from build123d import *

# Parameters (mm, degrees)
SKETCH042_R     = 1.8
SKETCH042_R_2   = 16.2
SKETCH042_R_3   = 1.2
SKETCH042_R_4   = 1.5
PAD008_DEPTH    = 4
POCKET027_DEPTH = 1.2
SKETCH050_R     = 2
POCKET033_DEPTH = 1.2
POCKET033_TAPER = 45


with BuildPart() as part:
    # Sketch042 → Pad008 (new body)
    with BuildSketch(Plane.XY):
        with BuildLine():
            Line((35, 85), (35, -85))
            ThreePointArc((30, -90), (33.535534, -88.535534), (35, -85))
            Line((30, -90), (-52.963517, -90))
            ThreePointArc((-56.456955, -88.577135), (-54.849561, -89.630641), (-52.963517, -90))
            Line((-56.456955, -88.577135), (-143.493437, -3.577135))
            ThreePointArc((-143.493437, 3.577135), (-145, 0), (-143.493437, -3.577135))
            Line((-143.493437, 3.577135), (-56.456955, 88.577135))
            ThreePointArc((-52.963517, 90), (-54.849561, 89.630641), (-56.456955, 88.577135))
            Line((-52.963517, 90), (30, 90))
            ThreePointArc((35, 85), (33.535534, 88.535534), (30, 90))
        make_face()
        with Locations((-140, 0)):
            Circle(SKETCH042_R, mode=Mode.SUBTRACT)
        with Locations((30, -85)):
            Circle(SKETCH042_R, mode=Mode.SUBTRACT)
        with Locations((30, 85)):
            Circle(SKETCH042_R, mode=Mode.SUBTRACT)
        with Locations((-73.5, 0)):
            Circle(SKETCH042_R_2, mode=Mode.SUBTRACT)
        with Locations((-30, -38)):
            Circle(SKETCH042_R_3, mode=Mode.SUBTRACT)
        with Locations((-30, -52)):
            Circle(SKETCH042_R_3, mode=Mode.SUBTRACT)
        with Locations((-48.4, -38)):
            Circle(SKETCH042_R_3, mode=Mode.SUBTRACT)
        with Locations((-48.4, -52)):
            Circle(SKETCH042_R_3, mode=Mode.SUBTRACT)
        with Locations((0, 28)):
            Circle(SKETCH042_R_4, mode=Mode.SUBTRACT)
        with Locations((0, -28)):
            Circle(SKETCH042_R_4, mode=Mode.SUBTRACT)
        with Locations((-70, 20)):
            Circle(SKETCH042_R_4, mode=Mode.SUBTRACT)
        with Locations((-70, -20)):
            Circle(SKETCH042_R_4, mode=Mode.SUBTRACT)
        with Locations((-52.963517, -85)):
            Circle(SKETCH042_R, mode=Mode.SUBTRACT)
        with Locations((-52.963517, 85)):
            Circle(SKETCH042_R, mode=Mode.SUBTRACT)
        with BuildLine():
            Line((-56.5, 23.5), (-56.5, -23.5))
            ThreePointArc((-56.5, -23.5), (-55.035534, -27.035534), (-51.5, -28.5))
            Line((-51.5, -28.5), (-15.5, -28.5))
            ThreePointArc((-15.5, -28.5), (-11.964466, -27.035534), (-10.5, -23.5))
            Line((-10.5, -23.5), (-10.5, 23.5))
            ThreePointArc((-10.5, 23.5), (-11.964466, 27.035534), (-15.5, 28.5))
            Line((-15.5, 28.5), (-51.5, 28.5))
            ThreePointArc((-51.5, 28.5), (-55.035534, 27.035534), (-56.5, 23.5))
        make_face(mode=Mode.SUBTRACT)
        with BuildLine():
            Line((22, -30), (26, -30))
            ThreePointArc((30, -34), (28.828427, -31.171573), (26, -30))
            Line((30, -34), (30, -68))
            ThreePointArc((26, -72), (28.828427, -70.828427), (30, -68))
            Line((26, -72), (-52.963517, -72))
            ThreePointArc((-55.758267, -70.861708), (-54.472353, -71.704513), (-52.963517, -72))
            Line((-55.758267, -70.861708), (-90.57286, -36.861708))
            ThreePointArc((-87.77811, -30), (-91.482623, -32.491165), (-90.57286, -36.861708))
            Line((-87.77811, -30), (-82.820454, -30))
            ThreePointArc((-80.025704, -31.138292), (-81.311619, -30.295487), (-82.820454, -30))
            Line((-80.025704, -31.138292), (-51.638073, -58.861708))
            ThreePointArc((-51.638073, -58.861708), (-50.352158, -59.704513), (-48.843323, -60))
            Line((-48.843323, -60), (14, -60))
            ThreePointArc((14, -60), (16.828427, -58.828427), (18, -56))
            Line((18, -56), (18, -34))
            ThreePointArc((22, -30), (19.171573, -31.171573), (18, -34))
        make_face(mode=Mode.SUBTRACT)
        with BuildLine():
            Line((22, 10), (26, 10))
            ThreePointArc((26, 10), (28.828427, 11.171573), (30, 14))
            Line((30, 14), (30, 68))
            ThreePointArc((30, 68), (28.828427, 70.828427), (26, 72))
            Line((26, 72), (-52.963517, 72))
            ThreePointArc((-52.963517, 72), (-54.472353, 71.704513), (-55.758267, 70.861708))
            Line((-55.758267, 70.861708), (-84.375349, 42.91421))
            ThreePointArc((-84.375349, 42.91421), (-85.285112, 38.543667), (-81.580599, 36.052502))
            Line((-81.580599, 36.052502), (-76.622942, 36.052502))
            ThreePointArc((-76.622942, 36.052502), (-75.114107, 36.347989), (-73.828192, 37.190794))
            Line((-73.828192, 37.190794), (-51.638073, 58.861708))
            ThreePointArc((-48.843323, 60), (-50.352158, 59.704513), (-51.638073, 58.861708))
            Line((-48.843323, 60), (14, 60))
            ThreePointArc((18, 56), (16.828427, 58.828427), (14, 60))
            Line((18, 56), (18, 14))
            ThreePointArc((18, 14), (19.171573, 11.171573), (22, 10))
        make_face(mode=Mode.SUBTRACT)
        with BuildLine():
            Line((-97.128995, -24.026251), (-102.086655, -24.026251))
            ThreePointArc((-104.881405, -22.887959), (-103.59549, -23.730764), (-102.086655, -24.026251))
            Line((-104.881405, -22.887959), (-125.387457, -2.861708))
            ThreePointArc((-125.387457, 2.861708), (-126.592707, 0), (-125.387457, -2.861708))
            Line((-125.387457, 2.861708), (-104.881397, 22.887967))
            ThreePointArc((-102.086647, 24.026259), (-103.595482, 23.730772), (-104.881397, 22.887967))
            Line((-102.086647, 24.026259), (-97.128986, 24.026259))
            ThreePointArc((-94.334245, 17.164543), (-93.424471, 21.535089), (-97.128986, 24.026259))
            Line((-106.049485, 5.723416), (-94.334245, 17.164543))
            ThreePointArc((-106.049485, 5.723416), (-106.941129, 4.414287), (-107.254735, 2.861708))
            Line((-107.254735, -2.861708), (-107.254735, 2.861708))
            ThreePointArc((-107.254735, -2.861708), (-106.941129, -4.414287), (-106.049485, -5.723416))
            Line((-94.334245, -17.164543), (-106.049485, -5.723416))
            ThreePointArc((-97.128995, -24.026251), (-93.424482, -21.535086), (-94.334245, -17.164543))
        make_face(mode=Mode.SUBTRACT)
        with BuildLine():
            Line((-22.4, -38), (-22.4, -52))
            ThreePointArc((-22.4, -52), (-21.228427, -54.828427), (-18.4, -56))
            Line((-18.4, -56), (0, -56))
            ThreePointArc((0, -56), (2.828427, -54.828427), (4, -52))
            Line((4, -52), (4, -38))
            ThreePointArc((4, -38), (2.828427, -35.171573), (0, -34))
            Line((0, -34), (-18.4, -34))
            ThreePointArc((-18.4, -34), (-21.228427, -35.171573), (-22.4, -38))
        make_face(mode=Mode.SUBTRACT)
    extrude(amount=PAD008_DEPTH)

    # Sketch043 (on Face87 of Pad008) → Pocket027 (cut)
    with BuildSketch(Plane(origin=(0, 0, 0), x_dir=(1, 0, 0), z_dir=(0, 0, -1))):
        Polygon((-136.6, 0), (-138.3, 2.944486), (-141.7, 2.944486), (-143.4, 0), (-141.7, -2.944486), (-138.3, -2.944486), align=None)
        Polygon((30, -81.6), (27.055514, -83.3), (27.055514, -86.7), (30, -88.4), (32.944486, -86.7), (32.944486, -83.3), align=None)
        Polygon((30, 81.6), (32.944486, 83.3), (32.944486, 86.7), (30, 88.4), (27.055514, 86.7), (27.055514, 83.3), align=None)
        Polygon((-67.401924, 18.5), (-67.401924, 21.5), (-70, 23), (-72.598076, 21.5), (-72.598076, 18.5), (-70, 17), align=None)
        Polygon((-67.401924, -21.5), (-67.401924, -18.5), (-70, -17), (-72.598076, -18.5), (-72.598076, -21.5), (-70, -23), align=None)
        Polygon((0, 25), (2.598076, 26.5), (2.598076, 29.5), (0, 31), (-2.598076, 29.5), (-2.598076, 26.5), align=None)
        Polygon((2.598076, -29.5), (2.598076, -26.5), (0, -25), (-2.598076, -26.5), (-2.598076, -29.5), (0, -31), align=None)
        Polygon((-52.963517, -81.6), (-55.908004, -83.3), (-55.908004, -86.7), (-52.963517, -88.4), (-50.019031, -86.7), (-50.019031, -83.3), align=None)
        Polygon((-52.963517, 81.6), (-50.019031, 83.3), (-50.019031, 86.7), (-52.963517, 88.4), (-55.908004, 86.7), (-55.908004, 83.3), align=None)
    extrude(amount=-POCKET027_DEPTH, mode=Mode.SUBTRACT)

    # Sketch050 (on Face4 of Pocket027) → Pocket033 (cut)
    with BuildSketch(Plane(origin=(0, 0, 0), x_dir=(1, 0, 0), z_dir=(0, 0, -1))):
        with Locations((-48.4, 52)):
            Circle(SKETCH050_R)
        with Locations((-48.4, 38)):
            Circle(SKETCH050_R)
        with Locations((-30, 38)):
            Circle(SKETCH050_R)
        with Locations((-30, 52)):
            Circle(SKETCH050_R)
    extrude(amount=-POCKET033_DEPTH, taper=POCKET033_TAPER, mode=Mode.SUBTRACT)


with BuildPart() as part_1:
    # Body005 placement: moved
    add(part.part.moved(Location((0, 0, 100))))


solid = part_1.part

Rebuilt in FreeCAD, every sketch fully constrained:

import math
import FreeCAD as App
import Part
import Sketcher
from FreeCAD import Vector
Q = App.Units.Quantity

doc = App.newDocument("Part")
body = doc.addObject("PartDesign::Body", "Body")

# Sketch on XY plane
sketch1 = body.newObject("Sketcher::SketchObject", "Sketch")
sketch1.AttachmentSupport = (doc.getObject("XY_Plane"), [""])
sketch1.MapMode = "FlatFace"
sketch1.addGeometry([
    Part.LineSegment(Vector(35, -85, 0), Vector(35, 85, 0)),  # 0
    Part.ArcOfCircle(Part.Circle(Vector(30, 85, 0), Vector(0, 0, 1), 5), math.radians(0), math.radians(90)),  # 1
    Part.LineSegment(Vector(30, 90, 0), Vector(-53, 90, 0)),  # 2
    Part.ArcOfCircle(Part.Circle(Vector(-53, 85, 0), Vector(0, 0, 1), 5), math.radians(90), math.radians(134)),  # 3
    Part.LineSegment(Vector(-56.5, 88.6, 0), Vector(-143.5, 3.6, 0)),  # 4
    Part.ArcOfCircle(Part.Circle(Vector(-140, 0, 0), Vector(0, 0, 1), 5), math.radians(134), math.radians(226)),  # 5
    Part.LineSegment(Vector(-143.5, -3.6, 0), Vector(-56.5, -88.6, 0)),  # 6
    Part.ArcOfCircle(Part.Circle(Vector(-53, -85, 0), Vector(0, 0, 1), 5), math.radians(-134), math.radians(-90)),  # 7
    Part.LineSegment(Vector(-53, -90, 0), Vector(30, -90, 0)),  # 8
    Part.ArcOfCircle(Part.Circle(Vector(30, -85, 0), Vector(0, 0, 1), 5), math.radians(-90), math.radians(0)),  # 9
    Part.Circle(Vector(30, -85, 0), Vector(0, 0, 1), 1.8),  # 10
    Part.ArcOfCircle(Part.Circle(Vector(-18.4, -38, 0), Vector(0, 0, 1), 4), math.radians(90), math.radians(180)),  # 11
    Part.LineSegment(Vector(-18.4, -34, 0), Vector(0, -34, 0)),  # 12
    Part.ArcOfCircle(Part.Circle(Vector(0, -38, 0), Vector(0, 0, 1), 4), math.radians(0), math.radians(90)),  # 13
    Part.LineSegment(Vector(4, -38, 0), Vector(4, -52, 0)),  # 14
    Part.ArcOfCircle(Part.Circle(Vector(0, -52, 0), Vector(0, 0, 1), 4), math.radians(-90), math.radians(0)),  # 15
    Part.LineSegment(Vector(0, -56, 0), Vector(-18.4, -56, 0)),  # 16
    Part.ArcOfCircle(Part.Circle(Vector(-18.4, -52, 0), Vector(0, 0, 1), 4), math.radians(-180), math.radians(-90)),  # 17
    Part.LineSegment(Vector(-22.4, -52, 0), Vector(-22.4, -38, 0)),  # 18
    Part.Circle(Vector(-53, -85, 0), Vector(0, 0, 1), 1.8),  # 19
    Part.Circle(Vector(-30, -52, 0), Vector(0, 0, 1), 1.2),  # 20
    Part.LineSegment(Vector(22, -30, 0), Vector(26, -30, 0)),  # 21
    Part.ArcOfCircle(Part.Circle(Vector(26, -34, 0), Vector(0, 0, 1), 4), math.radians(0), math.radians(90)),  # 22
    Part.LineSegment(Vector(30, -34, 0), Vector(30, -68, 0)),  # 23
    Part.ArcOfCircle(Part.Circle(Vector(26, -68, 0), Vector(0, 0, 1), 4), math.radians(-90), math.radians(0)),  # 24
    Part.LineSegment(Vector(26, -72, 0), Vector(-53, -72, 0)),  # 25
    Part.ArcOfCircle(Part.Circle(Vector(-53, -68, 0), Vector(0, 0, 1), 4), math.radians(-134), math.radians(-90)),  # 26
    Part.LineSegment(Vector(-55.8, -70.9, 0), Vector(-90.6, -36.9, 0)),  # 27
    Part.ArcOfCircle(Part.Circle(Vector(-87.8, -34, 0), Vector(0, 0, 1), 4), math.radians(90), math.radians(226)),  # 28
    Part.LineSegment(Vector(-87.8, -30, 0), Vector(-82.8, -30, 0)),  # 29
    Part.ArcOfCircle(Part.Circle(Vector(-82.8, -34, 0), Vector(0, 0, 1), 4), math.radians(46), math.radians(90)),  # 30
    Part.LineSegment(Vector(-80, -31.1, 0), Vector(-51.6, -58.9, 0)),  # 31
    Part.ArcOfCircle(Part.Circle(Vector(-48.8, -56, 0), Vector(0, 0, 1), 4), math.radians(-134), math.radians(-90)),  # 32
    Part.LineSegment(Vector(-48.8, -60, 0), Vector(14, -60, 0)),  # 33
    Part.ArcOfCircle(Part.Circle(Vector(14, -56, 0), Vector(0, 0, 1), 4), math.radians(-90), math.radians(0)),  # 34
    Part.LineSegment(Vector(18, -56, 0), Vector(18, -34, 0)),  # 35
    Part.ArcOfCircle(Part.Circle(Vector(22, -34, 0), Vector(0, 0, 1), 4), math.radians(90), math.radians(180)),  # 36
    Part.Circle(Vector(-48.4, -52, 0), Vector(0, 0, 1), 1.2),  # 37
    Part.Circle(Vector(0, -28, 0), Vector(0, 0, 1), 1.5),  # 38
    Part.Circle(Vector(-30, -38, 0), Vector(0, 0, 1), 1.2),  # 39
    Part.Circle(Vector(-48.4, -38, 0), Vector(0, 0, 1), 1.2),  # 40
    Part.Circle(Vector(-70, -20, 0), Vector(0, 0, 1), 1.5),  # 41
    Part.Circle(Vector(0, 28, 0), Vector(0, 0, 1), 1.5),  # 42
    Part.ArcOfCircle(Part.Circle(Vector(-51.5, 23.5, 0), Vector(0, 0, 1), 5), math.radians(90), math.radians(180)),  # 43
    Part.LineSegment(Vector(-51.5, 28.5, 0), Vector(-15.5, 28.5, 0)),  # 44
    Part.ArcOfCircle(Part.Circle(Vector(-15.5, 23.5, 0), Vector(0, 0, 1), 5), math.radians(0), math.radians(90)),  # 45
    Part.LineSegment(Vector(-10.5, 23.5, 0), Vector(-10.5, -23.5, 0)),  # 46
    Part.ArcOfCircle(Part.Circle(Vector(-15.5, -23.5, 0), Vector(0, 0, 1), 5), math.radians(-90), math.radians(0)),  # 47
    Part.LineSegment(Vector(-15.5, -28.5, 0), Vector(-51.5, -28.5, 0)),  # 48
    Part.ArcOfCircle(Part.Circle(Vector(-51.5, -23.5, 0), Vector(0, 0, 1), 5), math.radians(180), math.radians(270)),  # 49
    Part.LineSegment(Vector(-56.5, -23.5, 0), Vector(-56.5, 23.5, 0)),  # 50
    Part.ArcOfCircle(Part.Circle(Vector(22, 14, 0), Vector(0, 0, 1), 4), math.radians(-180), math.radians(-90)),  # 51
    Part.LineSegment(Vector(18, 14, 0), Vector(18, 56, 0)),  # 52
    Part.ArcOfCircle(Part.Circle(Vector(14, 56, 0), Vector(0, 0, 1), 4), math.radians(0), math.radians(90)),  # 53
    Part.LineSegment(Vector(14, 60, 0), Vector(-48.8, 60, 0)),  # 54
    Part.ArcOfCircle(Part.Circle(Vector(-48.8, 56, 0), Vector(0, 0, 1), 4), math.radians(90), math.radians(134)),  # 55
    Part.LineSegment(Vector(-51.6, 58.9, 0), Vector(-73.8, 37.2, 0)),  # 56
    Part.ArcOfCircle(Part.Circle(Vector(-76.6, 40.1, 0), Vector(0, 0, 1), 4), math.radians(-90), math.radians(-46)),  # 57
    Part.LineSegment(Vector(-76.6, 36.1, 0), Vector(-81.6, 36.1, 0)),  # 58
    Part.ArcOfCircle(Part.Circle(Vector(-81.6, 40.1, 0), Vector(0, 0, 1), 4), math.radians(134), math.radians(270)),  # 59
    Part.LineSegment(Vector(-84.4, 42.9, 0), Vector(-55.8, 70.9, 0)),  # 60
    Part.ArcOfCircle(Part.Circle(Vector(-53, 68, 0), Vector(0, 0, 1), 4), math.radians(90), math.radians(134)),  # 61
    Part.LineSegment(Vector(-53, 72, 0), Vector(26, 72, 0)),  # 62
    Part.ArcOfCircle(Part.Circle(Vector(26, 68, 0), Vector(0, 0, 1), 4), math.radians(0), math.radians(90)),  # 63
    Part.LineSegment(Vector(30, 68, 0), Vector(30, 14, 0)),  # 64
    Part.ArcOfCircle(Part.Circle(Vector(26, 14, 0), Vector(0, 0, 1), 4), math.radians(-90), math.radians(0)),  # 65
    Part.LineSegment(Vector(26, 10, 0), Vector(22, 10, 0)),  # 66
    Part.Circle(Vector(30, 85, 0), Vector(0, 0, 1), 1.8),  # 67
    Part.Circle(Vector(-53, 85, 0), Vector(0, 0, 1), 1.8),  # 68
    Part.Circle(Vector(-73.5, 0, 0), Vector(0, 0, 1), 16.2),  # 69
    Part.Circle(Vector(-70, 20, 0), Vector(0, 0, 1), 1.5),  # 70
    Part.LineSegment(Vector(-97.1, -24, 0), Vector(-102.1, -24, 0)),  # 71
    Part.ArcOfCircle(Part.Circle(Vector(-102.1, -20, 0), Vector(0, 0, 1), 4), math.radians(-134), math.radians(-90)),  # 72
    Part.LineSegment(Vector(-104.9, -22.9, 0), Vector(-125.4, -2.9, 0)),  # 73
    Part.ArcOfCircle(Part.Circle(Vector(-122.6, 0, 0), Vector(0, 0, 1), 4), math.radians(134), math.radians(226)),  # 74
    Part.LineSegment(Vector(-125.4, 2.9, 0), Vector(-104.9, 22.9, 0)),  # 75
    Part.ArcOfCircle(Part.Circle(Vector(-102.1, 20, 0), Vector(0, 0, 1), 4), math.radians(90), math.radians(134)),  # 76
    Part.LineSegment(Vector(-102.1, 24, 0), Vector(-97.1, 24, 0)),  # 77
    Part.ArcOfCircle(Part.Circle(Vector(-97.1, 20, 0), Vector(0, 0, 1), 4), math.radians(-46), math.radians(90)),  # 78
    Part.LineSegment(Vector(-94.3, 17.2, 0), Vector(-106, 5.7, 0)),  # 79
    Part.ArcOfCircle(Part.Circle(Vector(-103.3, 2.9, 0), Vector(0, 0, 1), 4), math.radians(134), math.radians(180)),  # 80
    Part.LineSegment(Vector(-107.3, 2.9, 0), Vector(-107.3, -2.9, 0)),  # 81
    Part.ArcOfCircle(Part.Circle(Vector(-103.3, -2.9, 0), Vector(0, 0, 1), 4), math.radians(180), math.radians(226)),  # 82
    Part.LineSegment(Vector(-106, -5.7, 0), Vector(-94.3, -17.2, 0)),  # 83
    Part.ArcOfCircle(Part.Circle(Vector(-97.1, -20, 0), Vector(0, 0, 1), 4), math.radians(-90), math.radians(46)),  # 84
    Part.Circle(Vector(-140, 0, 0), Vector(0, 0, 1), 1.8),  # 85
], False)
sketch1.addConstraint([
    Sketcher.Constraint("Tangent", 0, 2, 1, 1),
    Sketcher.Constraint("Tangent", 1, 2, 2, 1),
    Sketcher.Constraint("Tangent", 2, 2, 3, 1),
    Sketcher.Constraint("Tangent", 3, 2, 4, 1),
    Sketcher.Constraint("Tangent", 4, 2, 5, 1),
    Sketcher.Constraint("Tangent", 5, 2, 6, 1),
    Sketcher.Constraint("Tangent", 6, 2, 7, 1),
    Sketcher.Constraint("Tangent", 7, 2, 8, 1),
    Sketcher.Constraint("Tangent", 8, 2, 9, 1),
    Sketcher.Constraint("Tangent", 9, 2, 0, 1),
    Sketcher.Constraint("Tangent", 11, 1, 12, 1),
    Sketcher.Constraint("Tangent", 12, 2, 13, 2),
    Sketcher.Constraint("Tangent", 13, 1, 14, 1),
    Sketcher.Constraint("Tangent", 14, 2, 15, 2),
    Sketcher.Constraint("Tangent", 15, 1, 16, 1),
    Sketcher.Constraint("Tangent", 16, 2, 17, 2),
    Sketcher.Constraint("Tangent", 17, 1, 18, 1),
    Sketcher.Constraint("Tangent", 18, 2, 11, 2),
    Sketcher.Constraint("Tangent", 21, 2, 22, 2),
    Sketcher.Constraint("Tangent", 22, 1, 23, 1),
    Sketcher.Constraint("Tangent", 23, 2, 24, 2),
    Sketcher.Constraint("Tangent", 24, 1, 25, 1),
    Sketcher.Constraint("Tangent", 25, 2, 26, 2),
    Sketcher.Constraint("Tangent", 26, 1, 27, 1),
    Sketcher.Constraint("Tangent", 27, 2, 28, 2),
    Sketcher.Constraint("Tangent", 28, 1, 29, 1),
    Sketcher.Constraint("Tangent", 29, 2, 30, 2),
    Sketcher.Constraint("Tangent", 30, 1, 31, 1),
    Sketcher.Constraint("Tangent", 31, 2, 32, 1),
    Sketcher.Constraint("Tangent", 32, 2, 33, 1),
    Sketcher.Constraint("Tangent", 33, 2, 34, 1),
    Sketcher.Constraint("Tangent", 34, 2, 35, 1),
    Sketcher.Constraint("Tangent", 35, 2, 36, 2),
    Sketcher.Constraint("Tangent", 36, 1, 21, 1),
    Sketcher.Constraint("Tangent", 43, 1, 44, 1),
    Sketcher.Constraint("Tangent", 44, 2, 45, 2),
    Sketcher.Constraint("Tangent", 45, 1, 46, 1),
    Sketcher.Constraint("Tangent", 46, 2, 47, 2),
    Sketcher.Constraint("Tangent", 47, 1, 48, 1),
    Sketcher.Constraint("Tangent", 48, 2, 49, 2),
    Sketcher.Constraint("Tangent", 49, 1, 50, 1),
    Sketcher.Constraint("Tangent", 50, 2, 43, 2),
    Sketcher.Constraint("Tangent", 51, 1, 52, 1),
    Sketcher.Constraint("Tangent", 52, 2, 53, 1),
    Sketcher.Constraint("Tangent", 53, 2, 54, 1),
    Sketcher.Constraint("Tangent", 54, 2, 55, 1),
    Sketcher.Constraint("Tangent", 55, 2, 56, 1),
    Sketcher.Constraint("Tangent", 56, 2, 57, 2),
    Sketcher.Constraint("Tangent", 57, 1, 58, 1),
    Sketcher.Constraint("Tangent", 58, 2, 59, 2),
    Sketcher.Constraint("Tangent", 59, 1, 60, 1),
    Sketcher.Constraint("Tangent", 60, 2, 61, 2),
    Sketcher.Constraint("Tangent", 61, 1, 62, 1),
    Sketcher.Constraint("Tangent", 62, 2, 63, 2),
    Sketcher.Constraint("Tangent", 63, 1, 64, 1),
    Sketcher.Constraint("Tangent", 64, 2, 65, 2),
    Sketcher.Constraint("Tangent", 65, 1, 66, 1),
    Sketcher.Constraint("Tangent", 66, 2, 51, 2),
    Sketcher.Constraint("Tangent", 71, 2, 72, 2),
    Sketcher.Constraint("Tangent", 72, 1, 73, 1),
    Sketcher.Constraint("Tangent", 73, 2, 74, 2),
    Sketcher.Constraint("Tangent", 74, 1, 75, 1),
    Sketcher.Constraint("Tangent", 75, 2, 76, 2),
    Sketcher.Constraint("Tangent", 76, 1, 77, 1),
    Sketcher.Constraint("Tangent", 77, 2, 78, 2),
    Sketcher.Constraint("Coincident", 78, 1, 79, 1),
    Sketcher.Constraint("Tangent", 79, 2, 80, 1),
    Sketcher.Constraint("Tangent", 80, 2, 81, 1),
    Sketcher.Constraint("Tangent", 81, 2, 82, 1),
    Sketcher.Constraint("Tangent", 82, 2, 83, 1),
    Sketcher.Constraint("Tangent", 83, 2, 84, 2),
    Sketcher.Constraint("Tangent", 84, 1, 71, 1),
    Sketcher.Constraint("Vertical", 0),
    Sketcher.Constraint("Horizontal", 2),
    Sketcher.Constraint("Horizontal", 8),
    Sketcher.Constraint("Horizontal", 12),
    Sketcher.Constraint("Vertical", 14),
    Sketcher.Constraint("Horizontal", 16),
    Sketcher.Constraint("Vertical", 18),
    Sketcher.Constraint("Horizontal", 21),
    Sketcher.Constraint("Vertical", 23),
    Sketcher.Constraint("Horizontal", 25),
    Sketcher.Constraint("Horizontal", 29),
    Sketcher.Constraint("Horizontal", 33),
    Sketcher.Constraint("Vertical", 35),
    Sketcher.Constraint("Horizontal", 44),
    Sketcher.Constraint("Vertical", 46),
    Sketcher.Constraint("Horizontal", 48),
    Sketcher.Constraint("Vertical", 50),
    Sketcher.Constraint("Vertical", 52),
    Sketcher.Constraint("Horizontal", 54),
    Sketcher.Constraint("Horizontal", 58),
    Sketcher.Constraint("Horizontal", 62),
    Sketcher.Constraint("Vertical", 64),
    Sketcher.Constraint("Horizontal", 66),
    Sketcher.Constraint("Horizontal", 71),
    Sketcher.Constraint("Horizontal", 77),
    Sketcher.Constraint("Vertical", 81),
    Sketcher.Constraint("Coincident", 10, 3, 9, 3),
    Sketcher.Constraint("Coincident", 19, 3, 7, 3),
    Sketcher.Constraint("Coincident", 67, 3, 1, 3),
    Sketcher.Constraint("Coincident", 68, 3, 3, 3),
    Sketcher.Constraint("Coincident", 85, 3, 5, 3),
    Sketcher.Constraint("Equal", 1, 5),
    Sketcher.Constraint("Equal", 3, 7),
    Sketcher.Constraint("Equal", 5, 9),
    Sketcher.Constraint("Equal", 11, 13),
    Sketcher.Constraint("Equal", 13, 15),
    Sketcher.Constraint("Equal", 15, 17),
    Sketcher.Constraint("Equal", 10, 19),
    Sketcher.Constraint("Equal", 17, 22),
    Sketcher.Constraint("Equal", 22, 24),
    Sketcher.Constraint("Equal", 24, 28),
    Sketcher.Constraint("Equal", 28, 30),
    Sketcher.Constraint("Equal", 30, 32),
    Sketcher.Constraint("Equal", 32, 34),
    Sketcher.Constraint("Equal", 34, 36),
    Sketcher.Constraint("Equal", 20, 37),
    Sketcher.Constraint("Equal", 37, 39),
    Sketcher.Constraint("Equal", 39, 40),
    Sketcher.Constraint("Equal", 38, 41),
    Sketcher.Constraint("Equal", 41, 42),
    Sketcher.Constraint("Equal", 9, 43),
    Sketcher.Constraint("Equal", 43, 45),
    Sketcher.Constraint("Equal", 45, 47),
    Sketcher.Constraint("Equal", 47, 49),
    Sketcher.Constraint("Equal", 36, 51),
    Sketcher.Constraint("Equal", 51, 53),
    Sketcher.Constraint("Equal", 53, 55),
    Sketcher.Constraint("Equal", 55, 57),
    Sketcher.Constraint("Equal", 57, 59),
    Sketcher.Constraint("Equal", 26, 61),
    Sketcher.Constraint("Equal", 59, 63),
    Sketcher.Constraint("Equal", 63, 65),
    Sketcher.Constraint("Equal", 19, 67),
    Sketcher.Constraint("Equal", 67, 68),
    Sketcher.Constraint("Equal", 42, 70),
    Sketcher.Constraint("Equal", 65, 72),
    Sketcher.Constraint("Equal", 72, 74),
    Sketcher.Constraint("Equal", 74, 76),
    Sketcher.Constraint("Equal", 76, 78),
    Sketcher.Constraint("Equal", 61, 80),
    Sketcher.Constraint("Equal", 80, 82),
    Sketcher.Constraint("Equal", 78, 84),
    Sketcher.Constraint("Equal", 68, 85),
    Sketcher.Constraint("Symmetric", 38, 3, 42, 3, -1, 1),
    Sketcher.Constraint("Symmetric", 3, 3, 7, 3, -1),
    Sketcher.Constraint("Symmetric", 34, 3, 53, 3, -1),
    Sketcher.Constraint("Symmetric", 26, 3, 61, 3, -1),
    Sketcher.Constraint("Symmetric", 41, 3, 70, 3, -1),
    Sketcher.Constraint("Symmetric", 31, 2, 55, 2, -1),
    Sketcher.Constraint("Symmetric", 73, 2, 74, 1, -1),
    Sketcher.Constraint("Symmetric", 79, 2, 82, 2, -1),
    Sketcher.Constraint("PointOnObject", 5, 3, -1),
    Sketcher.Constraint("PointOnObject", 13, 3, -2),
    Sketcher.Constraint("PointOnObject", 38, 3, -2),
    Sketcher.Constraint("PointOnObject", 69, 3, -1),
    Sketcher.Constraint("Parallel", 6, 27),
    Sketcher.Constraint("Parallel", 27, 31),
    Sketcher.Constraint("Parallel", 56, 60),
    Sketcher.Constraint("Parallel", 31, 73),
    Sketcher.Constraint("Parallel", 75, 79),
    Sketcher.Constraint("Horizontal", 10, 3, 19, 3),
    Sketcher.Constraint("Horizontal", 17, 3, 20, 3),
    Sketcher.Constraint("Horizontal", 22, 3, 28, 3),
    Sketcher.Constraint("Horizontal", 20, 3, 37, 3),
    Sketcher.Constraint("Horizontal", 13, 3, 39, 3),
    Sketcher.Constraint("Horizontal", 39, 3, 40, 3),
    Sketcher.Constraint("Horizontal", 36, 3, 11, 1),
    Sketcher.Constraint("Horizontal", 34, 3, 15, 1),
    Sketcher.Constraint("Horizontal", 82, 3, 73, 2),
    Sketcher.Constraint("Vertical", 19, 3, 26, 3),
    Sketcher.Constraint("Vertical", 20, 3, 39, 3),
    Sketcher.Constraint("Vertical", 37, 3, 40, 3),
    Sketcher.Constraint("Vertical", 24, 3, 63, 3),
    Sketcher.Constraint("Vertical", 8, 2, 22, 1),
    Sketcher.Constraint("Vertical", 78, 1, 83, 2),
    Sketcher.Constraint("Diameter", 38, 3.0),
    Sketcher.Constraint("Radius", 1, 5.0),
    Sketcher.Constraint("Radius", 11, 4.0),
    Sketcher.Constraint("Diameter", 10, 3.6),
    Sketcher.Constraint("Diameter", 20, 2.4),
    Sketcher.Constraint("Diameter", 69, 32.4),
    Sketcher.Constraint("DistanceX", 21, 1, 21, 2, 4.0),
    Sketcher.Constraint("DistanceX", 44, 1, 44, 2, 36.0),
    Sketcher.Constraint("DistanceY", 0, 1, 0, 2, 170.0),
    Sketcher.Constraint("DistanceY", 14, 2, 14, 1, 14.0),
    Sketcher.Constraint("DistanceY", 23, 2, 23, 1, 34.0),
    Sketcher.Constraint("DistanceY", 46, 2, 46, 1, 47.0),
    Sketcher.Constraint("DistanceY", 52, 1, 52, 2, 42.0),
    Sketcher.Constraint("Distance", 60, 40.0),
    Sketcher.Constraint("DistanceX", 12, 1, 12, 2, 18.4),
    Sketcher.Constraint("DistanceX", -1, 1, 1, 3, 30.0),
    Sketcher.Constraint("DistanceX", 5, 3, -1, 1, 140.000001),
    Sketcher.Constraint("DistanceY", 11, 3, -1, 1, 38.0),
    Sketcher.Constraint("DistanceX", 20, 3, -1, 1, 30.0),
    Sketcher.Constraint("DistanceY", 38, 3, -1, 1, 28.0),
    Sketcher.Constraint("DistanceX", 41, 3, -1, 1, 70.0),
    Sketcher.Constraint("DistanceY", 41, 3, -1, 1, 20.0),
    Sketcher.Constraint("DistanceX", 37, 3, -1, 1, 48.4),
    Sketcher.Constraint("DistanceX", 43, 3, -1, 1, 51.5),
    Sketcher.Constraint("DistanceY", -1, 1, 43, 3, 23.5),
    Sketcher.Constraint("DistanceX", 69, 3, -1, 1, 73.5),
    Sketcher.Constraint("Radius", 26, 3.999996),
    Sketcher.Constraint("DistanceX", 71, 2, 71, 1, 4.95766),
    Sketcher.Constraint("DistanceX", 59, 3, -1, 1, 81.580599),
    Sketcher.Constraint("Distance", 79, 16.375171),
    Sketcher.Constraint("DistanceX", 29, 1, 29, 2, 4.957656),
    Sketcher.Constraint("DistanceY", -1, 1, 76, 3, 20.026258),
    Sketcher.Constraint("DistanceX", 80, 3, -1, 1, 103.254738),
])
pad1 = body.newObject("PartDesign::Pad", "Pad")
pad1.Profile = sketch1
pad1.Length = 4

# Sketch on XY plane
sketch2 = body.newObject("Sketcher::SketchObject", "Sketch001")
sketch2.AttachmentSupport = (doc.getObject("XY_Plane"), [""])
sketch2.MapMode = "FlatFace"
sketch2.addGeometry([
    Part.LineSegment(Vector(-136.6, 0, 0), Vector(-138.3, -2.9, 0)),  # 0
    Part.LineSegment(Vector(-138.3, -2.9, 0), Vector(-141.7, -2.9, 0)),  # 1
    Part.LineSegment(Vector(-141.7, -2.9, 0), Vector(-143.4, 0, 0)),  # 2
    Part.LineSegment(Vector(-143.4, 0, 0), Vector(-141.7, 2.9, 0)),  # 3
    Part.LineSegment(Vector(-141.7, 2.9, 0), Vector(-138.3, 2.9, 0)),  # 4
    Part.LineSegment(Vector(-138.3, 2.9, 0), Vector(-136.6, 0, 0)),  # 5
    Part.LineSegment(Vector(30, 81.6, 0), Vector(27.1, 83.3, 0)),  # 6
    Part.LineSegment(Vector(27.1, 83.3, 0), Vector(27.1, 86.7, 0)),  # 7
    Part.LineSegment(Vector(27.1, 86.7, 0), Vector(30, 88.4, 0)),  # 8
    Part.LineSegment(Vector(30, 88.4, 0), Vector(32.9, 86.7, 0)),  # 9
    Part.LineSegment(Vector(32.9, 86.7, 0), Vector(32.9, 83.3, 0)),  # 10
    Part.LineSegment(Vector(32.9, 83.3, 0), Vector(30, 81.6, 0)),  # 11
    Part.LineSegment(Vector(30, -81.6, 0), Vector(32.9, -83.3, 0)),  # 12
    Part.LineSegment(Vector(32.9, -83.3, 0), Vector(32.9, -86.7, 0)),  # 13
    Part.LineSegment(Vector(32.9, -86.7, 0), Vector(30, -88.4, 0)),  # 14
    Part.LineSegment(Vector(30, -88.4, 0), Vector(27.1, -86.7, 0)),  # 15
    Part.LineSegment(Vector(27.1, -86.7, 0), Vector(27.1, -83.3, 0)),  # 16
    Part.LineSegment(Vector(27.1, -83.3, 0), Vector(30, -81.6, 0)),  # 17
    Part.LineSegment(Vector(-67.4, -18.5, 0), Vector(-67.4, -21.5, 0)),  # 18
    Part.LineSegment(Vector(-67.4, -21.5, 0), Vector(-70, -23, 0)),  # 19
    Part.LineSegment(Vector(-70, -23, 0), Vector(-72.6, -21.5, 0)),  # 20
    Part.LineSegment(Vector(-72.6, -21.5, 0), Vector(-72.6, -18.5, 0)),  # 21
    Part.LineSegment(Vector(-72.6, -18.5, 0), Vector(-70, -17, 0)),  # 22
    Part.LineSegment(Vector(-70, -17, 0), Vector(-67.4, -18.5, 0)),  # 23
    Part.LineSegment(Vector(-67.4, 21.5, 0), Vector(-67.4, 18.5, 0)),  # 24
    Part.LineSegment(Vector(-67.4, 18.5, 0), Vector(-70, 17, 0)),  # 25
    Part.LineSegment(Vector(-70, 17, 0), Vector(-72.6, 18.5, 0)),  # 26
    Part.LineSegment(Vector(-72.6, 18.5, 0), Vector(-72.6, 21.5, 0)),  # 27
    Part.LineSegment(Vector(-72.6, 21.5, 0), Vector(-70, 23, 0)),  # 28
    Part.LineSegment(Vector(-70, 23, 0), Vector(-67.4, 21.5, 0)),  # 29
    Part.LineSegment(Vector(0, -25, 0), Vector(2.6, -26.5, 0)),  # 30
    Part.LineSegment(Vector(2.6, -26.5, 0), Vector(2.6, -29.5, 0)),  # 31
    Part.LineSegment(Vector(2.6, -29.5, 0), Vector(0, -31, 0)),  # 32
    Part.LineSegment(Vector(0, -31, 0), Vector(-2.6, -29.5, 0)),  # 33
    Part.LineSegment(Vector(-2.6, -29.5, 0), Vector(-2.6, -26.5, 0)),  # 34
    Part.LineSegment(Vector(-2.6, -26.5, 0), Vector(0, -25, 0)),  # 35
    Part.LineSegment(Vector(2.6, 29.5, 0), Vector(2.6, 26.5, 0)),  # 36
    Part.LineSegment(Vector(2.6, 26.5, 0), Vector(0, 25, 0)),  # 37
    Part.LineSegment(Vector(0, 25, 0), Vector(-2.6, 26.5, 0)),  # 38
    Part.LineSegment(Vector(-2.6, 26.5, 0), Vector(-2.6, 29.5, 0)),  # 39
    Part.LineSegment(Vector(-2.6, 29.5, 0), Vector(0, 31, 0)),  # 40
    Part.LineSegment(Vector(0, 31, 0), Vector(2.6, 29.5, 0)),  # 41
    Part.LineSegment(Vector(-53, 81.6, 0), Vector(-55.9, 83.3, 0)),  # 42
    Part.LineSegment(Vector(-55.9, 83.3, 0), Vector(-55.9, 86.7, 0)),  # 43
    Part.LineSegment(Vector(-55.9, 86.7, 0), Vector(-53, 88.4, 0)),  # 44
    Part.LineSegment(Vector(-53, 88.4, 0), Vector(-50, 86.7, 0)),  # 45
    Part.LineSegment(Vector(-50, 86.7, 0), Vector(-50, 83.3, 0)),  # 46
    Part.LineSegment(Vector(-50, 83.3, 0), Vector(-53, 81.6, 0)),  # 47
    Part.LineSegment(Vector(-53, -81.6, 0), Vector(-50, -83.3, 0)),  # 48
    Part.LineSegment(Vector(-50, -83.3, 0), Vector(-50, -86.7, 0)),  # 49
    Part.LineSegment(Vector(-50, -86.7, 0), Vector(-53, -88.4, 0)),  # 50
    Part.LineSegment(Vector(-53, -88.4, 0), Vector(-55.9, -86.7, 0)),  # 51
    Part.LineSegment(Vector(-55.9, -86.7, 0), Vector(-55.9, -83.3, 0)),  # 52
    Part.LineSegment(Vector(-55.9, -83.3, 0), Vector(-53, -81.6, 0)),  # 53
], False)
sketch2.addConstraint([
    Sketcher.Constraint("Coincident", 0, 2, 1, 1),
    Sketcher.Constraint("Coincident", 1, 2, 2, 1),
    Sketcher.Constraint("Coincident", 2, 2, 3, 1),
    Sketcher.Constraint("Coincident", 3, 2, 4, 1),
    Sketcher.Constraint("Coincident", 4, 2, 5, 1),
    Sketcher.Constraint("Coincident", 5, 2, 0, 1),
    Sketcher.Constraint("Coincident", 6, 2, 7, 1),
    Sketcher.Constraint("Coincident", 7, 2, 8, 1),
    Sketcher.Constraint("Coincident", 8, 2, 9, 1),
    Sketcher.Constraint("Coincident", 9, 2, 10, 1),
    Sketcher.Constraint("Coincident", 10, 2, 11, 1),
    Sketcher.Constraint("Coincident", 11, 2, 6, 1),
    Sketcher.Constraint("Coincident", 12, 2, 13, 1),
    Sketcher.Constraint("Coincident", 13, 2, 14, 1),
    Sketcher.Constraint("Coincident", 14, 2, 15, 1),
    Sketcher.Constraint("Coincident", 15, 2, 16, 1),
    Sketcher.Constraint("Coincident", 16, 2, 17, 1),
    Sketcher.Constraint("Coincident", 17, 2, 12, 1),
    Sketcher.Constraint("Coincident", 18, 2, 19, 1),
    Sketcher.Constraint("Coincident", 19, 2, 20, 1),
    Sketcher.Constraint("Coincident", 20, 2, 21, 1),
    Sketcher.Constraint("Coincident", 21, 2, 22, 1),
    Sketcher.Constraint("Coincident", 22, 2, 23, 1),
    Sketcher.Constraint("Coincident", 23, 2, 18, 1),
    Sketcher.Constraint("Coincident", 24, 2, 25, 1),
    Sketcher.Constraint("Coincident", 25, 2, 26, 1),
    Sketcher.Constraint("Coincident", 26, 2, 27, 1),
    Sketcher.Constraint("Coincident", 27, 2, 28, 1),
    Sketcher.Constraint("Coincident", 28, 2, 29, 1),
    Sketcher.Constraint("Coincident", 29, 2, 24, 1),
    Sketcher.Constraint("Coincident", 30, 2, 31, 1),
    Sketcher.Constraint("Coincident", 31, 2, 32, 1),
    Sketcher.Constraint("Coincident", 32, 2, 33, 1),
    Sketcher.Constraint("Coincident", 33, 2, 34, 1),
    Sketcher.Constraint("Coincident", 34, 2, 35, 1),
    Sketcher.Constraint("Coincident", 35, 2, 30, 1),
    Sketcher.Constraint("Coincident", 36, 2, 37, 1),
    Sketcher.Constraint("Coincident", 37, 2, 38, 1),
    Sketcher.Constraint("Coincident", 38, 2, 39, 1),
    Sketcher.Constraint("Coincident", 39, 2, 40, 1),
    Sketcher.Constraint("Coincident", 40, 2, 41, 1),
    Sketcher.Constraint("Coincident", 41, 2, 36, 1),
    Sketcher.Constraint("Coincident", 42, 2, 43, 1),
    Sketcher.Constraint("Coincident", 43, 2, 44, 1),
    Sketcher.Constraint("Coincident", 44, 2, 45, 1),
    Sketcher.Constraint("Coincident", 45, 2, 46, 1),
    Sketcher.Constraint("Coincident", 46, 2, 47, 1),
    Sketcher.Constraint("Coincident", 47, 2, 42, 1),
    Sketcher.Constraint("Coincident", 48, 2, 49, 1),
    Sketcher.Constraint("Coincident", 49, 2, 50, 1),
    Sketcher.Constraint("Coincident", 50, 2, 51, 1),
    Sketcher.Constraint("Coincident", 51, 2, 52, 1),
    Sketcher.Constraint("Coincident", 52, 2, 53, 1),
    Sketcher.Constraint("Coincident", 53, 2, 48, 1),
    Sketcher.Constraint("Horizontal", 1),
    Sketcher.Constraint("Horizontal", 4),
    Sketcher.Constraint("Vertical", 7),
    Sketcher.Constraint("Vertical", 10),
    Sketcher.Constraint("Vertical", 13),
    Sketcher.Constraint("Vertical", 16),
    Sketcher.Constraint("Vertical", 18),
    Sketcher.Constraint("Vertical", 21),
    Sketcher.Constraint("Vertical", 24),
    Sketcher.Constraint("Vertical", 27),
    Sketcher.Constraint("Vertical", 31),
    Sketcher.Constraint("Vertical", 34),
    Sketcher.Constraint("Vertical", 36),
    Sketcher.Constraint("Vertical", 39),
    Sketcher.Constraint("Vertical", 43),
    Sketcher.Constraint("Vertical", 46),
    Sketcher.Constraint("Vertical", 49),
    Sketcher.Constraint("Vertical", 52),
    Sketcher.Constraint("Symmetric", 34, 2, 36, 2, -1, 1),
    Sketcher.Constraint("Symmetric", 35, 2, 37, 2, -1, 1),
    Sketcher.Constraint("Symmetric", 30, 2, 38, 2, -1, 1),
    Sketcher.Constraint("Symmetric", 32, 2, 40, 2, -1, 1),
    Sketcher.Constraint("Symmetric", 31, 2, 33, 2, -2),
    Sketcher.Constraint("Symmetric", 1, 2, 3, 2, -1),
    Sketcher.Constraint("Symmetric", 10, 2, 12, 2, -1),
    Sketcher.Constraint("Symmetric", 8, 2, 14, 2, -1),
    Sketcher.Constraint("Symmetric", 7, 2, 15, 2, -1),
    Sketcher.Constraint("Symmetric", 11, 2, 17, 2, -1),
    Sketcher.Constraint("Symmetric", 23, 2, 24, 2, -1),
    Sketcher.Constraint("Symmetric", 22, 2, 25, 2, -1),
    Sketcher.Constraint("Symmetric", 21, 2, 26, 2, -1),
    Sketcher.Constraint("Symmetric", 19, 2, 28, 2, -1),
    Sketcher.Constraint("Symmetric", 46, 2, 48, 2, -1),
    Sketcher.Constraint("Symmetric", 44, 2, 50, 2, -1),
    Sketcher.Constraint("Symmetric", 43, 2, 51, 2, -1),
    Sketcher.Constraint("Symmetric", 47, 2, 53, 2, -1),
    Sketcher.Constraint("PointOnObject", 2, 2, -1),
    Sketcher.Constraint("PointOnObject", 5, 2, -1),
    Sketcher.Constraint("PointOnObject", 32, 2, -2),
    Sketcher.Constraint("PointOnObject", 35, 2, -2),
    Sketcher.Constraint("Parallel", 0, 3),
    Sketcher.Constraint("Parallel", 2, 5),
    Sketcher.Constraint("Perpendicular", 3, 6),
    Sketcher.Constraint("Perpendicular", 5, 8),
    Sketcher.Constraint("Parallel", 6, 9),
    Sketcher.Constraint("Parallel", 8, 11),
    Sketcher.Constraint("Parallel", 11, 14),
    Sketcher.Constraint("Parallel", 14, 17),
    Sketcher.Constraint("Parallel", 17, 19),
    Sketcher.Constraint("Parallel", 15, 20),
    Sketcher.Constraint("Parallel", 19, 22),
    Sketcher.Constraint("Parallel", 20, 23),
    Sketcher.Constraint("Parallel", 25, 28),
    Sketcher.Constraint("Parallel", 26, 29),
    Sketcher.Constraint("Parallel", 29, 30),
    Sketcher.Constraint("Parallel", 28, 32),
    Sketcher.Constraint("Parallel", 32, 35),
    Sketcher.Constraint("Parallel", 37, 40),
    Sketcher.Constraint("Parallel", 38, 41),
    Sketcher.Constraint("Parallel", 41, 42),
    Sketcher.Constraint("Parallel", 40, 44),
    Sketcher.Constraint("Parallel", 42, 45),
    Sketcher.Constraint("Parallel", 44, 47),
    Sketcher.Constraint("Parallel", 47, 50),
    Sketcher.Constraint("Parallel", 50, 53),
    Sketcher.Constraint("Horizontal", 7, 2, 9, 2),
    Sketcher.Constraint("Horizontal", 6, 2, 10, 2),
    Sketcher.Constraint("Horizontal", 18, 2, 20, 2),
    Sketcher.Constraint("Horizontal", 21, 2, 23, 2),
    Sketcher.Constraint("Horizontal", 10, 2, 42, 2),
    Sketcher.Constraint("Horizontal", 9, 2, 43, 2),
    Sketcher.Constraint("Horizontal", 8, 2, 44, 2),
    Sketcher.Constraint("Horizontal", 43, 2, 45, 2),
    Sketcher.Constraint("Horizontal", 42, 2, 46, 2),
    Sketcher.Constraint("Equal", 4, 7),
    Sketcher.Constraint("Equal", 27, 31),
    Sketcher.Constraint("Equal", 5, 6),
    Sketcher.Constraint("Equal", 29, 30),
    Sketcher.Constraint("DistanceY", 18, 2, 18, 1, 3.0),
    Sketcher.Constraint("Angle", 0, Q("-120.000003 deg")),
    Sketcher.Constraint("Distance", 19, 3.0),
    Sketcher.Constraint("DistanceX", 1, 2, 1, 1, 3.4),
    Sketcher.Constraint("DistanceX", -1, 1, 8, 2, 30.0),
    Sketcher.Constraint("DistanceX", 19, 2, -1, 1, 70.0),
    Sketcher.Constraint("DistanceY", 19, 2, -1, 1, 23.0),
    Sketcher.Constraint("DistanceY", 32, 2, -1, 1, 31.0),
    Sketcher.Constraint("DistanceY", 12, 2, 9, 2, 170.0),
    Sketcher.Constraint("Distance", 0, 3.4),
    Sketcher.Constraint("DistanceX", 0, 2, -1, 1, 138.3),
    Sketcher.Constraint("DistanceX", 45, 2, -1, 1, 50.019031),
])
pocket1 = body.newObject("PartDesign::Pocket", "Pocket")
pocket1.Profile = sketch2
pocket1.Length = 1.2
pocket1.Reversed = True

# Sketch on XY plane
sketch3 = body.newObject("Sketcher::SketchObject", "Sketch002")
sketch3.AttachmentSupport = (doc.getObject("XY_Plane"), [""])
sketch3.MapMode = "FlatFace"
sketch3.addGeometry([
    Part.Circle(Vector(-48.4, -52, 0), Vector(0, 0, 1), 2),
    Part.Circle(Vector(-48.4, -38, 0), Vector(0, 0, 1), 2),
    Part.Circle(Vector(-30, -38, 0), Vector(0, 0, 1), 2),
    Part.Circle(Vector(-30, -52, 0), Vector(0, 0, 1), 2),
], False)
sketch3.addConstraint([
    Sketcher.Constraint("Equal", 0, 1),
    Sketcher.Constraint("Equal", 1, 2),
    Sketcher.Constraint("Equal", 2, 3),
    Sketcher.Constraint("Horizontal", 1, 3, 2, 3),
    Sketcher.Constraint("Horizontal", 0, 3, 3, 3),
    Sketcher.Constraint("Vertical", 0, 3, 1, 3),
    Sketcher.Constraint("Vertical", 2, 3, 3, 3),
    Sketcher.Constraint("Diameter", 0, 4.0),
    Sketcher.Constraint("DistanceY", 0, 3, -1, 1, 52.0),
    Sketcher.Constraint("DistanceY", 1, 3, -1, 1, 38.0),
    Sketcher.Constraint("DistanceX", 2, 3, -1, 1, 30.0),
    Sketcher.Constraint("DistanceX", 0, 3, -1, 1, 48.4),
])
pocket2 = body.newObject("PartDesign::Pocket", "Pocket001")
pocket2.Profile = sketch3
pocket2.Length = 1.2
pocket2.Reversed = True
pocket2.TaperAngle = -45
body2 = doc.addObject("PartDesign::Body", "Body001")
doc.recompute()

body.Placement = App.Placement(Vector(0, 0, 100), App.Rotation(Vector(0, 0, 1), 0))
boolean = body2.newObject("PartDesign::Boolean", "Boolean")
boolean.Type = "Fuse"
boolean.addObjects([body])

doc.recompute()
